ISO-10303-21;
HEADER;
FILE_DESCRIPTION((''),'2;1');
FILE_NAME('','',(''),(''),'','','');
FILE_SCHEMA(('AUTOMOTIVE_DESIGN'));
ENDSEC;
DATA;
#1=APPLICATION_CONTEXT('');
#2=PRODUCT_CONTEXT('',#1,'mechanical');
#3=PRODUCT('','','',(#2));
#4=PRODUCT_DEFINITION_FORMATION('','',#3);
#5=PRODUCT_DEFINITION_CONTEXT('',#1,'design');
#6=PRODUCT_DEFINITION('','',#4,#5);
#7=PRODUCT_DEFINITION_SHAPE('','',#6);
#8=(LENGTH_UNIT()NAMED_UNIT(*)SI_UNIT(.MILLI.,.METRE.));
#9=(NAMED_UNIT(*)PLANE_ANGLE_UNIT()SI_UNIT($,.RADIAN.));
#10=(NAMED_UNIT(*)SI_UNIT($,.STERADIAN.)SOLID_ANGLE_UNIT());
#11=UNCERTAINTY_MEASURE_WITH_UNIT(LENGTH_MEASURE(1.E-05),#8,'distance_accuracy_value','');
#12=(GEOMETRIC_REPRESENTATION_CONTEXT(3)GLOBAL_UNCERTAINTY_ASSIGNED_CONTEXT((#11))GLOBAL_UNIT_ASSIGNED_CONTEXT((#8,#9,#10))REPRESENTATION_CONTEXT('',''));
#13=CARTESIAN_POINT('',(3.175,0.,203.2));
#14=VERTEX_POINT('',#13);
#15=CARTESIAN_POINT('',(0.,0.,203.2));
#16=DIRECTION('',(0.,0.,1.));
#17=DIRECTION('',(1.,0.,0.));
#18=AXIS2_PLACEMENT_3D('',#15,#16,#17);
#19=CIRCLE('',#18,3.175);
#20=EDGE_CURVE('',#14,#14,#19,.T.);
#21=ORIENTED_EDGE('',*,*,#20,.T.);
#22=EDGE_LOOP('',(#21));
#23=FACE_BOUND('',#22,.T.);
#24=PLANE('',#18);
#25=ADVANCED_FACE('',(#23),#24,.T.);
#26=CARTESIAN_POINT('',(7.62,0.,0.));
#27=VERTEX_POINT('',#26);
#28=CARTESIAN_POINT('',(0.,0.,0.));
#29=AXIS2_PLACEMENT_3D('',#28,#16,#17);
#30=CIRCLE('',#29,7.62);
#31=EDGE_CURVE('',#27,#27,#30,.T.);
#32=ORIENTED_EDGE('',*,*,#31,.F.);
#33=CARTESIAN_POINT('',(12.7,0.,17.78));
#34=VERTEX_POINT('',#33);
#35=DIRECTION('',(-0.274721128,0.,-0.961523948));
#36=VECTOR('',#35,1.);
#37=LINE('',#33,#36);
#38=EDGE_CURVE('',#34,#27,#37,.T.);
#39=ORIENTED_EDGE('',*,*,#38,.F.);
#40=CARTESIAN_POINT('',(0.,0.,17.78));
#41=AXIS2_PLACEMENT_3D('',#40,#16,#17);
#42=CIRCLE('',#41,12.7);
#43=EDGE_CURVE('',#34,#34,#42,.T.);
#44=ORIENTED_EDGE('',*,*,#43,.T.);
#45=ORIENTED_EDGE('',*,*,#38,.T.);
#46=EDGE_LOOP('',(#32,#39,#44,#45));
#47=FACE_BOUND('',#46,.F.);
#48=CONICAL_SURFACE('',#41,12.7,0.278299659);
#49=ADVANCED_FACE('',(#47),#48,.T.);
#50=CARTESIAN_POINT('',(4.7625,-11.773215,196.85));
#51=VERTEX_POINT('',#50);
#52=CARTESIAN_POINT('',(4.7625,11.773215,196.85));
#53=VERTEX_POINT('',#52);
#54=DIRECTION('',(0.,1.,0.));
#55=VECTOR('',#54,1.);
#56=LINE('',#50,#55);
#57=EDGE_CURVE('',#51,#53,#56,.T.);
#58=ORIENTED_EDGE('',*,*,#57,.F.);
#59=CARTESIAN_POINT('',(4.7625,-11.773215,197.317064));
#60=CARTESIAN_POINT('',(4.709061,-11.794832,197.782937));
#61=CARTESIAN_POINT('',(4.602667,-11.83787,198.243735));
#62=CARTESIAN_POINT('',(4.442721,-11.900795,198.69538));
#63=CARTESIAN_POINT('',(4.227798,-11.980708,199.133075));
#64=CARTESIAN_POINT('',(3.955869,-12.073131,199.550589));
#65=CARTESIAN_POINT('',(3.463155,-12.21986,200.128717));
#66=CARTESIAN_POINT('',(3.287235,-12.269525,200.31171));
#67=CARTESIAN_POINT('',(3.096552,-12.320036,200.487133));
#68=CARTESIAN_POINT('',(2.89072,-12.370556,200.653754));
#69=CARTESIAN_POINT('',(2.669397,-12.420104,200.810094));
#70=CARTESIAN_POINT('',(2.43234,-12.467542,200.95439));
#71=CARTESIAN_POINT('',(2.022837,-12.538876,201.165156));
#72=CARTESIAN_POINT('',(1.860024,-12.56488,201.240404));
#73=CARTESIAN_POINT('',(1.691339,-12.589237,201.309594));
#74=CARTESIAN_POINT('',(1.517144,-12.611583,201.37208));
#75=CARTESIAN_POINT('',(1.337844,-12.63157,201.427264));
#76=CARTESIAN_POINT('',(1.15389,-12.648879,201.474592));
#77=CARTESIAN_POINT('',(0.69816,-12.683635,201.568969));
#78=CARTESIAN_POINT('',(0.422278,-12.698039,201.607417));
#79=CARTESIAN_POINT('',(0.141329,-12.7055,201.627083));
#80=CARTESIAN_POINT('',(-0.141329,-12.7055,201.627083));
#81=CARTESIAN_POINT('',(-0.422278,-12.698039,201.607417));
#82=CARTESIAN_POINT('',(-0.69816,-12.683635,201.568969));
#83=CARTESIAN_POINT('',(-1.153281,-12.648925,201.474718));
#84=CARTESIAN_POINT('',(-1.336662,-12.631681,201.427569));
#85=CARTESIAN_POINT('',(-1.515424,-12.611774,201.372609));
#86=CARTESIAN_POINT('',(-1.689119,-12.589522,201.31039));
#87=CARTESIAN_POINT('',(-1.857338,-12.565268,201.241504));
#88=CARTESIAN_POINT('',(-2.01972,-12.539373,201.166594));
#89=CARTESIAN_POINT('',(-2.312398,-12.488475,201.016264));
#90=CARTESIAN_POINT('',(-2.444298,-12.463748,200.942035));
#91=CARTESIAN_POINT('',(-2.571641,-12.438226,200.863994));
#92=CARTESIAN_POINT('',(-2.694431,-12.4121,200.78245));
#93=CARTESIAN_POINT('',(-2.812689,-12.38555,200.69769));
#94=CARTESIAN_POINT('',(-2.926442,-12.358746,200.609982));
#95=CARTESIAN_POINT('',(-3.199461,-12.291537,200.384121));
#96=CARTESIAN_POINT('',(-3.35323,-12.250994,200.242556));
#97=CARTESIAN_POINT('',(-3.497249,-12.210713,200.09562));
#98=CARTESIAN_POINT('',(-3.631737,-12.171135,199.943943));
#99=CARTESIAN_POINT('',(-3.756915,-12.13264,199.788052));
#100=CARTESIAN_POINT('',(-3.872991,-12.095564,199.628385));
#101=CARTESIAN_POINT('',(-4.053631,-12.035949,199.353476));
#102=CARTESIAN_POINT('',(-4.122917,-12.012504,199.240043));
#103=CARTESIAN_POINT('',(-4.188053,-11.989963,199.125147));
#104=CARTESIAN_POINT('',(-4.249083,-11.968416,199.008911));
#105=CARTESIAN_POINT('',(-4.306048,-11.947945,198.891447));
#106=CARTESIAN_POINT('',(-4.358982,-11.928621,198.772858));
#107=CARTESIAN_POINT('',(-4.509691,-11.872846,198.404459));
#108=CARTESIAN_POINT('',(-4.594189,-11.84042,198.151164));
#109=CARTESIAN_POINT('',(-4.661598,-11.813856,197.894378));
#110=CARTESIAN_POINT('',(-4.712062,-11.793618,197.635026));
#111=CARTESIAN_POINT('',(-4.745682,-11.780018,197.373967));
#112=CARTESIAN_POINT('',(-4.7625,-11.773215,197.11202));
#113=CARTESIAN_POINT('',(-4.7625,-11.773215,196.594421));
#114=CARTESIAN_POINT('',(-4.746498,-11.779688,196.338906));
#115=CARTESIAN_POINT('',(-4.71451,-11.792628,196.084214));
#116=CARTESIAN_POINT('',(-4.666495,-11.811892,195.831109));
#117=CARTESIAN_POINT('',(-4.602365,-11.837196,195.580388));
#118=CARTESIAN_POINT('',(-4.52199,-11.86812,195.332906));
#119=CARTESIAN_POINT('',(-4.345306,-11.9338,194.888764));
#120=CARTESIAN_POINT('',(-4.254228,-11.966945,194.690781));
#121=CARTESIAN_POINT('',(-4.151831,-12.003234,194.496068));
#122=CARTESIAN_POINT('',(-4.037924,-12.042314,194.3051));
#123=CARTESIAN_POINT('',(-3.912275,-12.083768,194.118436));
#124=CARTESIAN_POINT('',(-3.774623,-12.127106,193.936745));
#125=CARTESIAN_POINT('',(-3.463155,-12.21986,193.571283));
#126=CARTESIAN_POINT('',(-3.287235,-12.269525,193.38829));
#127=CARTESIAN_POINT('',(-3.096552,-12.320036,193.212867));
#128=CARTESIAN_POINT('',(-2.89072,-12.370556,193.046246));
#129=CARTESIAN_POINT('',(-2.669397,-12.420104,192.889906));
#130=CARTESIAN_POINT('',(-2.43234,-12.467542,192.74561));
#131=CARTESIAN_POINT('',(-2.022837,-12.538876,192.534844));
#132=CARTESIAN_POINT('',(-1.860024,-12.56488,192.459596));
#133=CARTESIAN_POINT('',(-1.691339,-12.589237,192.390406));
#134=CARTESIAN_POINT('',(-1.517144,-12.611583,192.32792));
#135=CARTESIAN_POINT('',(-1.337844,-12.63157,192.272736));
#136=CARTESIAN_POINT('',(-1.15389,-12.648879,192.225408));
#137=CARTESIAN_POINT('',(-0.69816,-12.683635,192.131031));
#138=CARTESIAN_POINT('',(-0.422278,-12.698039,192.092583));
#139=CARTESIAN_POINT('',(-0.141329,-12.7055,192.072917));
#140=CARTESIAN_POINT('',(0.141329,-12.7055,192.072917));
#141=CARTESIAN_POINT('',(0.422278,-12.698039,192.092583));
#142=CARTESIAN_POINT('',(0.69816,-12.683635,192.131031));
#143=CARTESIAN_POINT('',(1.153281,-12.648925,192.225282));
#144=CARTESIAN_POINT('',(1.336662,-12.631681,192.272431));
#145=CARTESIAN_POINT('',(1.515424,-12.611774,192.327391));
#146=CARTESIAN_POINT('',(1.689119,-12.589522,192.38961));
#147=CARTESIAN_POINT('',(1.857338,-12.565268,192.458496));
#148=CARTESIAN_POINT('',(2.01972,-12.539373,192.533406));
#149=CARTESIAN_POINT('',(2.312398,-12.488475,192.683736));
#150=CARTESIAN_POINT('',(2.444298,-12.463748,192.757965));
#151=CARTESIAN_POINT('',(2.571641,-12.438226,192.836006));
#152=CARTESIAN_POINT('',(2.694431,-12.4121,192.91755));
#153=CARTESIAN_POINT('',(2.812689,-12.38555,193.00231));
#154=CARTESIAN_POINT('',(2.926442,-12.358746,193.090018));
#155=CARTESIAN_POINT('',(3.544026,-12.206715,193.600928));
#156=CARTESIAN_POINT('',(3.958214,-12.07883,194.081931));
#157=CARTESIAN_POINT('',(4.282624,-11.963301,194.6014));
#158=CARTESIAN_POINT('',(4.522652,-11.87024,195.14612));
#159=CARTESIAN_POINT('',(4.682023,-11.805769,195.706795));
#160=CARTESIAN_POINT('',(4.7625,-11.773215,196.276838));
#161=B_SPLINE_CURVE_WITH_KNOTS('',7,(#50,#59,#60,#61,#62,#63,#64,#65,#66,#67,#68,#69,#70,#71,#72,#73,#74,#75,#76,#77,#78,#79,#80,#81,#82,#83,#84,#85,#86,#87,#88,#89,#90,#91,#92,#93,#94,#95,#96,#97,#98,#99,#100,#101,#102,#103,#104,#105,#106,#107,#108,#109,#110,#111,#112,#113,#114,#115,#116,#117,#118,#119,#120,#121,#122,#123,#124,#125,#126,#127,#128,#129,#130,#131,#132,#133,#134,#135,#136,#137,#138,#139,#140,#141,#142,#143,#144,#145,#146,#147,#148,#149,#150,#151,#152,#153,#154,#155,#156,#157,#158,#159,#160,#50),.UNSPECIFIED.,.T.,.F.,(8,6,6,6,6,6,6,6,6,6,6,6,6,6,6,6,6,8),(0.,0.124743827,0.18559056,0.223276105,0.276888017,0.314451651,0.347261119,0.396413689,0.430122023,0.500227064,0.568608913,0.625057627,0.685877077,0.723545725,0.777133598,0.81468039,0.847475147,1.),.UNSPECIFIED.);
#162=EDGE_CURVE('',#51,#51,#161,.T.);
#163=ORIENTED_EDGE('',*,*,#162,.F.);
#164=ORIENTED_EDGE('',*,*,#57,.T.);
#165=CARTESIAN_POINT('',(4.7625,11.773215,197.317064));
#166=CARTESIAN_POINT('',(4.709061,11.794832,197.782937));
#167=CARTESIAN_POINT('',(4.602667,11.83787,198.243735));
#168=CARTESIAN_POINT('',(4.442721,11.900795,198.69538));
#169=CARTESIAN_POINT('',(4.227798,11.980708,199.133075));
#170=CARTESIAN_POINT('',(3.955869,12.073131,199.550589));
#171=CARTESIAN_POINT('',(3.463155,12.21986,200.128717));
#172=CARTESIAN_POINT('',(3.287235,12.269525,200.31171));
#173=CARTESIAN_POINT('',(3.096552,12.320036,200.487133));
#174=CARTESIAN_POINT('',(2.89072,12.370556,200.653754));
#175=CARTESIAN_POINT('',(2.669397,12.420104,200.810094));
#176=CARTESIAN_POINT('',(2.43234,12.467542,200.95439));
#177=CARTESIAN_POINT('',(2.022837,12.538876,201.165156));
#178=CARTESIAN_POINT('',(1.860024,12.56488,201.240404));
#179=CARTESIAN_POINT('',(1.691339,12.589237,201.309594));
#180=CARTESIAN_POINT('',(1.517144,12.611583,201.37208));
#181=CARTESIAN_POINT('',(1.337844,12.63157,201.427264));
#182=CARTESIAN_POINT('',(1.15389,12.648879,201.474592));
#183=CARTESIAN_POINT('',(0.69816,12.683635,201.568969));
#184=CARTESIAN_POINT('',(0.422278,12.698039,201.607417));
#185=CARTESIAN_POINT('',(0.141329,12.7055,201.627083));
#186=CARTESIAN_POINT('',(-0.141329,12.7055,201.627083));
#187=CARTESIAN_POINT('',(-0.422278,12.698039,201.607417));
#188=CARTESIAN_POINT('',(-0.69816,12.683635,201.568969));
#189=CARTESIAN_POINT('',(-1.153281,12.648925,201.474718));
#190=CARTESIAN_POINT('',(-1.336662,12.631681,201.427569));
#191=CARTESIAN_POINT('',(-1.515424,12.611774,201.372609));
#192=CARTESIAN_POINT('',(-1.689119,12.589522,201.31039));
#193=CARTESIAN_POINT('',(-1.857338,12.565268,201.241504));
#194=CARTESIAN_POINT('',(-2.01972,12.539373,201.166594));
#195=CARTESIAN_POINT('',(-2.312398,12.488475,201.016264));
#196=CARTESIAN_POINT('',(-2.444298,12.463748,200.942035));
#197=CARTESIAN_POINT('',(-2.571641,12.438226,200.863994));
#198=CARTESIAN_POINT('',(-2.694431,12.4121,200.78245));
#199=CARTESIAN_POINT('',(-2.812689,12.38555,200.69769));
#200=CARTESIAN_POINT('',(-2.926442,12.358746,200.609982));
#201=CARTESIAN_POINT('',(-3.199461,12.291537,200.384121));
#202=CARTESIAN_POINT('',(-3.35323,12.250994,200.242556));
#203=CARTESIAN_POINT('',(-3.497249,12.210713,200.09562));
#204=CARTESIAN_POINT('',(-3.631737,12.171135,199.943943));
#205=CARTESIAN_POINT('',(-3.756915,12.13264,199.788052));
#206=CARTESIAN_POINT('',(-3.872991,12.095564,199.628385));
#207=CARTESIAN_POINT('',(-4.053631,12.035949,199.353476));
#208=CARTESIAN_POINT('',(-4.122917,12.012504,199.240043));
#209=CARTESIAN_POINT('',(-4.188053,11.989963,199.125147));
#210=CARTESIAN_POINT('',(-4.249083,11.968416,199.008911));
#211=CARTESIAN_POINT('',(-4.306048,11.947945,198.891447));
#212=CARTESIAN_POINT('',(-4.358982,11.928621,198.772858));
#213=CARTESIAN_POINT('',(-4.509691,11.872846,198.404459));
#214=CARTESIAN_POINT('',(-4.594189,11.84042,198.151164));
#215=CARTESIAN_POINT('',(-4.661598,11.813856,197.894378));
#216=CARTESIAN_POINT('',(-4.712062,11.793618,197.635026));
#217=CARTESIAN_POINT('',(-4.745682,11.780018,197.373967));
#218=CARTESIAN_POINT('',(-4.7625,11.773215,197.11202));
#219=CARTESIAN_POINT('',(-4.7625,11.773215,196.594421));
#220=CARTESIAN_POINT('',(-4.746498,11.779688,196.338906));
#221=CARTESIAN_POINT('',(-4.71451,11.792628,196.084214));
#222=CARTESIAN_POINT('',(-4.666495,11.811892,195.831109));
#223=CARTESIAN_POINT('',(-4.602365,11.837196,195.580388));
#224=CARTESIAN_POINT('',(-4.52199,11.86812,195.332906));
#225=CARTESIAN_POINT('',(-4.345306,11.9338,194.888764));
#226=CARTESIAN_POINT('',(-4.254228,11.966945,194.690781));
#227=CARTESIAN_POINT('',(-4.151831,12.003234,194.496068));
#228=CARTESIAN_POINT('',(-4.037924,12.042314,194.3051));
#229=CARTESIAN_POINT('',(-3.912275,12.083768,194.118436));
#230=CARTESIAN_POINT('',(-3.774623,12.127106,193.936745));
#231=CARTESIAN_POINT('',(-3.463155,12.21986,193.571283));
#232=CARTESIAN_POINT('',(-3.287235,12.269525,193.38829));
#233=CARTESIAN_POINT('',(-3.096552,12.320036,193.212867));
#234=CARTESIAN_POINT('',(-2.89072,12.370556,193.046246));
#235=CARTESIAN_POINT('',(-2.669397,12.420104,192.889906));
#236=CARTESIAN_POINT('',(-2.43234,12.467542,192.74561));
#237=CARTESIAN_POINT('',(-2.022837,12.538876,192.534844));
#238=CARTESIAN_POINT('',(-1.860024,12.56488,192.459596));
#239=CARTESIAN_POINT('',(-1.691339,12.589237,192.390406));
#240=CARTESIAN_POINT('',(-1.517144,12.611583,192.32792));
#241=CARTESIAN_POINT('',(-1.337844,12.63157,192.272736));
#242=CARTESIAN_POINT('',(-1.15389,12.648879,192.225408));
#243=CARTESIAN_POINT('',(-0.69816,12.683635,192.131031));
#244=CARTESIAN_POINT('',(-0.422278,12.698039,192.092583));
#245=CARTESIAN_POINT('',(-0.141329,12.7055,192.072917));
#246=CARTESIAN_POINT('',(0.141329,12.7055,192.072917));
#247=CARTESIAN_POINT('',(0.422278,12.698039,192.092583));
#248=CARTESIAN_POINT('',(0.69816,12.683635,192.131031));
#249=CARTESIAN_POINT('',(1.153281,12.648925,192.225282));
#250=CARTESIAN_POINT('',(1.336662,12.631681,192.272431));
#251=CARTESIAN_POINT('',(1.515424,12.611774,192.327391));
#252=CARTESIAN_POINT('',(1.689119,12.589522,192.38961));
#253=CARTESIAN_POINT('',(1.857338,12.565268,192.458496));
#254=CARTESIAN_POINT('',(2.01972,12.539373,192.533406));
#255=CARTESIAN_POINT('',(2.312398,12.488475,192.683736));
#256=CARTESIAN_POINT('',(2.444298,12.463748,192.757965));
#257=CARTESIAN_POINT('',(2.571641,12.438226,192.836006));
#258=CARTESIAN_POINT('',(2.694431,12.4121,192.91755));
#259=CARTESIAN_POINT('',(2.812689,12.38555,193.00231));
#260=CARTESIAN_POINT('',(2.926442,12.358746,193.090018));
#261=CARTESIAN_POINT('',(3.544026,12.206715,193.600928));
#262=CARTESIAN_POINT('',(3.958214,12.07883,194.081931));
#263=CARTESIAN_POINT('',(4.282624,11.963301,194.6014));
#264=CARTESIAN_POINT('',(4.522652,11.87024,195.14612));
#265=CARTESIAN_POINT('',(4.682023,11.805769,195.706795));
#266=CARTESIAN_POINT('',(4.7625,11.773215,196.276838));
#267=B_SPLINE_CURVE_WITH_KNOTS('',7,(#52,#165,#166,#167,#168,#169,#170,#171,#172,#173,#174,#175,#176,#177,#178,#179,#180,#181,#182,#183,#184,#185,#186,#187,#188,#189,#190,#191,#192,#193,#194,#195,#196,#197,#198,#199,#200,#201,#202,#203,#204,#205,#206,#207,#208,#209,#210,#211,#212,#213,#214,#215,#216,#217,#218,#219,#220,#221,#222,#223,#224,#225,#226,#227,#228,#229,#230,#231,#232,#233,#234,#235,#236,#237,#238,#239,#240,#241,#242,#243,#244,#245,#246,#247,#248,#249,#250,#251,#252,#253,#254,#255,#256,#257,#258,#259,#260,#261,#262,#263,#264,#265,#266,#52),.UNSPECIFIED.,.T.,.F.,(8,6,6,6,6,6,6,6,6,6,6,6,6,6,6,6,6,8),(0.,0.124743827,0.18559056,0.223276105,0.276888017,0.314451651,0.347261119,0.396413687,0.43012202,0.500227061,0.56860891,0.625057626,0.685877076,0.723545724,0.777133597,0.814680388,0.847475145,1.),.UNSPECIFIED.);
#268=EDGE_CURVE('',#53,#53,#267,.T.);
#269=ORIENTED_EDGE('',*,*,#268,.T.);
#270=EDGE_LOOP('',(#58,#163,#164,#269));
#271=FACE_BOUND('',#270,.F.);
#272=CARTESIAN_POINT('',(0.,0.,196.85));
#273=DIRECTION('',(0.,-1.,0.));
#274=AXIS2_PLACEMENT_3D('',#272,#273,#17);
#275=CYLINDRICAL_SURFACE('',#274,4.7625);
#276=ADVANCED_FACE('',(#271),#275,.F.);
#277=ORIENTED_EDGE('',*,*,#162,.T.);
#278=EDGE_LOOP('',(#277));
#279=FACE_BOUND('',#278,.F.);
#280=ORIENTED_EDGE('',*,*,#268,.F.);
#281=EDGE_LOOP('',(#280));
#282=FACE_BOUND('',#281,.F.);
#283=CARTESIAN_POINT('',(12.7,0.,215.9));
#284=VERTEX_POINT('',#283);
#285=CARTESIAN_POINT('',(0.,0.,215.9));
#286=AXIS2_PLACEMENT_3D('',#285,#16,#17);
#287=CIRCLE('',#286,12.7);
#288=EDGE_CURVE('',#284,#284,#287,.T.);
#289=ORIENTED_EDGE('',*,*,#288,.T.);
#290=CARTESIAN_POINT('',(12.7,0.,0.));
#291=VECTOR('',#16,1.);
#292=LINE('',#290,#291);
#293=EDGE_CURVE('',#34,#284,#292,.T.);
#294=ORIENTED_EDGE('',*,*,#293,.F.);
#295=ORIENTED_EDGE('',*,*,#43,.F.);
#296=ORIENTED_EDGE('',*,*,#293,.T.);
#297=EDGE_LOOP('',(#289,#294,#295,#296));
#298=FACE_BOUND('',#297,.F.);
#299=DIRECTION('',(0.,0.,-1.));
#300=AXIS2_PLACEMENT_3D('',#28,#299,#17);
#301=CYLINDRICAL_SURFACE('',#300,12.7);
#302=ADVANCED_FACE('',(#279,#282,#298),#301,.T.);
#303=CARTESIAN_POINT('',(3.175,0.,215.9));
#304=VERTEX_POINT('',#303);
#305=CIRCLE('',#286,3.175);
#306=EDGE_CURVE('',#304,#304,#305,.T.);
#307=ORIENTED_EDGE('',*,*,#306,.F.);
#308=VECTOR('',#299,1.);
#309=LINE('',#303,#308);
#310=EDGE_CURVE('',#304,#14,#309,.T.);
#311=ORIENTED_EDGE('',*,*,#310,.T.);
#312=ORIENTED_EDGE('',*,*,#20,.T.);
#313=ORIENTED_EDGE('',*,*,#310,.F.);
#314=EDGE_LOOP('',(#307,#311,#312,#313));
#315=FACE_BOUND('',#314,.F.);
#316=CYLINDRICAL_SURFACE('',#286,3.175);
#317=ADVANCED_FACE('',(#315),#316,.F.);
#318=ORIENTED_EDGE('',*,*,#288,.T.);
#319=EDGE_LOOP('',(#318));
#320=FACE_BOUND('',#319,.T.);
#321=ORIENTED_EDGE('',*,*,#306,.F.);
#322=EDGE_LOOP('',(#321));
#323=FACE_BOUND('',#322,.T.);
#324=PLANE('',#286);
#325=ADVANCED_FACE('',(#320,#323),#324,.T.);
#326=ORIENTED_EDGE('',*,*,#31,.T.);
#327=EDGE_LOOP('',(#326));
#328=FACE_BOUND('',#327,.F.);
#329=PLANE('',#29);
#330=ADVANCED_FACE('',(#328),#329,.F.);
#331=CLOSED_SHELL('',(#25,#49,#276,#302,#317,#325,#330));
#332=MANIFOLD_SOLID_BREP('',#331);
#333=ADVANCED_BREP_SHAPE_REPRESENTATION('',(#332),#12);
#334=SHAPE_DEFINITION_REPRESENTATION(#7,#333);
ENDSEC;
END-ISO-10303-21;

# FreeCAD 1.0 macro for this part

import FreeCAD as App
import Part
import Sketcher
Q = App.Units.Quantity


def edges_at(feature, points):
    """Names of the edges that pass closest to the given points."""
    edges = feature.Shape.Edges
    near = lambda p: min(range(len(edges)), key=lambda i: edges[i].distToShape(Part.Vertex(*p))[0])
    return sorted({f"Edge{near(p) + 1}" for p in points})

doc = App.newDocument("Part")
body = doc.addObject("PartDesign::Body", "Body")

# Sketch on XY plane
sketch1 = body.newObject("Sketcher::SketchObject", "Sketch")
sketch1.AttachmentSupport = (doc.getObject("XY_Plane"), [""])
sketch1.MapMode = "FlatFace"
sketch1.addGeometry(Part.Circle(App.Vector(0, 0, 0), App.Vector(0, 0, 1), 13), False)
sketch1.addConstraint([
    Sketcher.Constraint("Coincident", 0, 3, -1, 1),
    Sketcher.Constraint("Diameter", 0, Q("1 in")),
])
pad1 = body.newObject("PartDesign::Pad", "Pad")
pad1.Profile = sketch1
pad1.Length = Q("8.5 in")
doc.recompute()

chamfer = body.newObject("PartDesign::Chamfer", "Chamfer")
chamfer.Base = (pad1, edges_at(pad1, [(-12.7, 0, 0)]))
chamfer.ChamferType = "Two distances"
chamfer.Size = Q("0.7 in")
chamfer.Size2 = Q("0.2 in")

# Sketch on XZ plane
sketch2 = body.newObject("Sketcher::SketchObject", "Sketch001")
sketch2.AttachmentSupport = (doc.getObject("XZ_Plane"), [""])
sketch2.MapMode = "FlatFace"
sketch2.addGeometry(Part.Circle(App.Vector(0, 196.8, 0), App.Vector(0, 0, 1), 4.8), False)
sketch2.addConstraint([
    Sketcher.Constraint("PointOnObject", 0, 3, -2),
    Sketcher.Constraint("Diameter", 0, Q("0.375 in")),
    Sketcher.Constraint("DistanceY", -1, 1, 0, 3, Q("7.75 in")),
])
pocket1 = body.newObject("PartDesign::Pocket", "Pocket")
pocket1.Profile = sketch2
pocket1.Type = "ThroughAll"
pocket1.Midplane = True

# Sketch on XY plane
sketch3 = body.newObject("Sketcher::SketchObject", "Sketch002")
sketch3.AttachmentSupport = (doc.getObject("XY_Plane"), [""])
sketch3.MapMode = "FlatFace"
sketch3.AttachmentOffset = App.Placement(App.Vector(0, 0, 8.5 * 25.4), App.Rotation())
sketch3.addGeometry(Part.Circle(App.Vector(0, 0, 0), App.Vector(0, 0, 1), 3.2), False)
sketch3.addConstraint([
    Sketcher.Constraint("Coincident", 0, 3, -1, 1),
    Sketcher.Constraint("Diameter", 0, Q("0.25 in")),
])
pocket2 = body.newObject("PartDesign::Pocket", "Pocket001")
pocket2.Profile = sketch3
pocket2.Length = Q("0.5 in")

doc.recompute()
